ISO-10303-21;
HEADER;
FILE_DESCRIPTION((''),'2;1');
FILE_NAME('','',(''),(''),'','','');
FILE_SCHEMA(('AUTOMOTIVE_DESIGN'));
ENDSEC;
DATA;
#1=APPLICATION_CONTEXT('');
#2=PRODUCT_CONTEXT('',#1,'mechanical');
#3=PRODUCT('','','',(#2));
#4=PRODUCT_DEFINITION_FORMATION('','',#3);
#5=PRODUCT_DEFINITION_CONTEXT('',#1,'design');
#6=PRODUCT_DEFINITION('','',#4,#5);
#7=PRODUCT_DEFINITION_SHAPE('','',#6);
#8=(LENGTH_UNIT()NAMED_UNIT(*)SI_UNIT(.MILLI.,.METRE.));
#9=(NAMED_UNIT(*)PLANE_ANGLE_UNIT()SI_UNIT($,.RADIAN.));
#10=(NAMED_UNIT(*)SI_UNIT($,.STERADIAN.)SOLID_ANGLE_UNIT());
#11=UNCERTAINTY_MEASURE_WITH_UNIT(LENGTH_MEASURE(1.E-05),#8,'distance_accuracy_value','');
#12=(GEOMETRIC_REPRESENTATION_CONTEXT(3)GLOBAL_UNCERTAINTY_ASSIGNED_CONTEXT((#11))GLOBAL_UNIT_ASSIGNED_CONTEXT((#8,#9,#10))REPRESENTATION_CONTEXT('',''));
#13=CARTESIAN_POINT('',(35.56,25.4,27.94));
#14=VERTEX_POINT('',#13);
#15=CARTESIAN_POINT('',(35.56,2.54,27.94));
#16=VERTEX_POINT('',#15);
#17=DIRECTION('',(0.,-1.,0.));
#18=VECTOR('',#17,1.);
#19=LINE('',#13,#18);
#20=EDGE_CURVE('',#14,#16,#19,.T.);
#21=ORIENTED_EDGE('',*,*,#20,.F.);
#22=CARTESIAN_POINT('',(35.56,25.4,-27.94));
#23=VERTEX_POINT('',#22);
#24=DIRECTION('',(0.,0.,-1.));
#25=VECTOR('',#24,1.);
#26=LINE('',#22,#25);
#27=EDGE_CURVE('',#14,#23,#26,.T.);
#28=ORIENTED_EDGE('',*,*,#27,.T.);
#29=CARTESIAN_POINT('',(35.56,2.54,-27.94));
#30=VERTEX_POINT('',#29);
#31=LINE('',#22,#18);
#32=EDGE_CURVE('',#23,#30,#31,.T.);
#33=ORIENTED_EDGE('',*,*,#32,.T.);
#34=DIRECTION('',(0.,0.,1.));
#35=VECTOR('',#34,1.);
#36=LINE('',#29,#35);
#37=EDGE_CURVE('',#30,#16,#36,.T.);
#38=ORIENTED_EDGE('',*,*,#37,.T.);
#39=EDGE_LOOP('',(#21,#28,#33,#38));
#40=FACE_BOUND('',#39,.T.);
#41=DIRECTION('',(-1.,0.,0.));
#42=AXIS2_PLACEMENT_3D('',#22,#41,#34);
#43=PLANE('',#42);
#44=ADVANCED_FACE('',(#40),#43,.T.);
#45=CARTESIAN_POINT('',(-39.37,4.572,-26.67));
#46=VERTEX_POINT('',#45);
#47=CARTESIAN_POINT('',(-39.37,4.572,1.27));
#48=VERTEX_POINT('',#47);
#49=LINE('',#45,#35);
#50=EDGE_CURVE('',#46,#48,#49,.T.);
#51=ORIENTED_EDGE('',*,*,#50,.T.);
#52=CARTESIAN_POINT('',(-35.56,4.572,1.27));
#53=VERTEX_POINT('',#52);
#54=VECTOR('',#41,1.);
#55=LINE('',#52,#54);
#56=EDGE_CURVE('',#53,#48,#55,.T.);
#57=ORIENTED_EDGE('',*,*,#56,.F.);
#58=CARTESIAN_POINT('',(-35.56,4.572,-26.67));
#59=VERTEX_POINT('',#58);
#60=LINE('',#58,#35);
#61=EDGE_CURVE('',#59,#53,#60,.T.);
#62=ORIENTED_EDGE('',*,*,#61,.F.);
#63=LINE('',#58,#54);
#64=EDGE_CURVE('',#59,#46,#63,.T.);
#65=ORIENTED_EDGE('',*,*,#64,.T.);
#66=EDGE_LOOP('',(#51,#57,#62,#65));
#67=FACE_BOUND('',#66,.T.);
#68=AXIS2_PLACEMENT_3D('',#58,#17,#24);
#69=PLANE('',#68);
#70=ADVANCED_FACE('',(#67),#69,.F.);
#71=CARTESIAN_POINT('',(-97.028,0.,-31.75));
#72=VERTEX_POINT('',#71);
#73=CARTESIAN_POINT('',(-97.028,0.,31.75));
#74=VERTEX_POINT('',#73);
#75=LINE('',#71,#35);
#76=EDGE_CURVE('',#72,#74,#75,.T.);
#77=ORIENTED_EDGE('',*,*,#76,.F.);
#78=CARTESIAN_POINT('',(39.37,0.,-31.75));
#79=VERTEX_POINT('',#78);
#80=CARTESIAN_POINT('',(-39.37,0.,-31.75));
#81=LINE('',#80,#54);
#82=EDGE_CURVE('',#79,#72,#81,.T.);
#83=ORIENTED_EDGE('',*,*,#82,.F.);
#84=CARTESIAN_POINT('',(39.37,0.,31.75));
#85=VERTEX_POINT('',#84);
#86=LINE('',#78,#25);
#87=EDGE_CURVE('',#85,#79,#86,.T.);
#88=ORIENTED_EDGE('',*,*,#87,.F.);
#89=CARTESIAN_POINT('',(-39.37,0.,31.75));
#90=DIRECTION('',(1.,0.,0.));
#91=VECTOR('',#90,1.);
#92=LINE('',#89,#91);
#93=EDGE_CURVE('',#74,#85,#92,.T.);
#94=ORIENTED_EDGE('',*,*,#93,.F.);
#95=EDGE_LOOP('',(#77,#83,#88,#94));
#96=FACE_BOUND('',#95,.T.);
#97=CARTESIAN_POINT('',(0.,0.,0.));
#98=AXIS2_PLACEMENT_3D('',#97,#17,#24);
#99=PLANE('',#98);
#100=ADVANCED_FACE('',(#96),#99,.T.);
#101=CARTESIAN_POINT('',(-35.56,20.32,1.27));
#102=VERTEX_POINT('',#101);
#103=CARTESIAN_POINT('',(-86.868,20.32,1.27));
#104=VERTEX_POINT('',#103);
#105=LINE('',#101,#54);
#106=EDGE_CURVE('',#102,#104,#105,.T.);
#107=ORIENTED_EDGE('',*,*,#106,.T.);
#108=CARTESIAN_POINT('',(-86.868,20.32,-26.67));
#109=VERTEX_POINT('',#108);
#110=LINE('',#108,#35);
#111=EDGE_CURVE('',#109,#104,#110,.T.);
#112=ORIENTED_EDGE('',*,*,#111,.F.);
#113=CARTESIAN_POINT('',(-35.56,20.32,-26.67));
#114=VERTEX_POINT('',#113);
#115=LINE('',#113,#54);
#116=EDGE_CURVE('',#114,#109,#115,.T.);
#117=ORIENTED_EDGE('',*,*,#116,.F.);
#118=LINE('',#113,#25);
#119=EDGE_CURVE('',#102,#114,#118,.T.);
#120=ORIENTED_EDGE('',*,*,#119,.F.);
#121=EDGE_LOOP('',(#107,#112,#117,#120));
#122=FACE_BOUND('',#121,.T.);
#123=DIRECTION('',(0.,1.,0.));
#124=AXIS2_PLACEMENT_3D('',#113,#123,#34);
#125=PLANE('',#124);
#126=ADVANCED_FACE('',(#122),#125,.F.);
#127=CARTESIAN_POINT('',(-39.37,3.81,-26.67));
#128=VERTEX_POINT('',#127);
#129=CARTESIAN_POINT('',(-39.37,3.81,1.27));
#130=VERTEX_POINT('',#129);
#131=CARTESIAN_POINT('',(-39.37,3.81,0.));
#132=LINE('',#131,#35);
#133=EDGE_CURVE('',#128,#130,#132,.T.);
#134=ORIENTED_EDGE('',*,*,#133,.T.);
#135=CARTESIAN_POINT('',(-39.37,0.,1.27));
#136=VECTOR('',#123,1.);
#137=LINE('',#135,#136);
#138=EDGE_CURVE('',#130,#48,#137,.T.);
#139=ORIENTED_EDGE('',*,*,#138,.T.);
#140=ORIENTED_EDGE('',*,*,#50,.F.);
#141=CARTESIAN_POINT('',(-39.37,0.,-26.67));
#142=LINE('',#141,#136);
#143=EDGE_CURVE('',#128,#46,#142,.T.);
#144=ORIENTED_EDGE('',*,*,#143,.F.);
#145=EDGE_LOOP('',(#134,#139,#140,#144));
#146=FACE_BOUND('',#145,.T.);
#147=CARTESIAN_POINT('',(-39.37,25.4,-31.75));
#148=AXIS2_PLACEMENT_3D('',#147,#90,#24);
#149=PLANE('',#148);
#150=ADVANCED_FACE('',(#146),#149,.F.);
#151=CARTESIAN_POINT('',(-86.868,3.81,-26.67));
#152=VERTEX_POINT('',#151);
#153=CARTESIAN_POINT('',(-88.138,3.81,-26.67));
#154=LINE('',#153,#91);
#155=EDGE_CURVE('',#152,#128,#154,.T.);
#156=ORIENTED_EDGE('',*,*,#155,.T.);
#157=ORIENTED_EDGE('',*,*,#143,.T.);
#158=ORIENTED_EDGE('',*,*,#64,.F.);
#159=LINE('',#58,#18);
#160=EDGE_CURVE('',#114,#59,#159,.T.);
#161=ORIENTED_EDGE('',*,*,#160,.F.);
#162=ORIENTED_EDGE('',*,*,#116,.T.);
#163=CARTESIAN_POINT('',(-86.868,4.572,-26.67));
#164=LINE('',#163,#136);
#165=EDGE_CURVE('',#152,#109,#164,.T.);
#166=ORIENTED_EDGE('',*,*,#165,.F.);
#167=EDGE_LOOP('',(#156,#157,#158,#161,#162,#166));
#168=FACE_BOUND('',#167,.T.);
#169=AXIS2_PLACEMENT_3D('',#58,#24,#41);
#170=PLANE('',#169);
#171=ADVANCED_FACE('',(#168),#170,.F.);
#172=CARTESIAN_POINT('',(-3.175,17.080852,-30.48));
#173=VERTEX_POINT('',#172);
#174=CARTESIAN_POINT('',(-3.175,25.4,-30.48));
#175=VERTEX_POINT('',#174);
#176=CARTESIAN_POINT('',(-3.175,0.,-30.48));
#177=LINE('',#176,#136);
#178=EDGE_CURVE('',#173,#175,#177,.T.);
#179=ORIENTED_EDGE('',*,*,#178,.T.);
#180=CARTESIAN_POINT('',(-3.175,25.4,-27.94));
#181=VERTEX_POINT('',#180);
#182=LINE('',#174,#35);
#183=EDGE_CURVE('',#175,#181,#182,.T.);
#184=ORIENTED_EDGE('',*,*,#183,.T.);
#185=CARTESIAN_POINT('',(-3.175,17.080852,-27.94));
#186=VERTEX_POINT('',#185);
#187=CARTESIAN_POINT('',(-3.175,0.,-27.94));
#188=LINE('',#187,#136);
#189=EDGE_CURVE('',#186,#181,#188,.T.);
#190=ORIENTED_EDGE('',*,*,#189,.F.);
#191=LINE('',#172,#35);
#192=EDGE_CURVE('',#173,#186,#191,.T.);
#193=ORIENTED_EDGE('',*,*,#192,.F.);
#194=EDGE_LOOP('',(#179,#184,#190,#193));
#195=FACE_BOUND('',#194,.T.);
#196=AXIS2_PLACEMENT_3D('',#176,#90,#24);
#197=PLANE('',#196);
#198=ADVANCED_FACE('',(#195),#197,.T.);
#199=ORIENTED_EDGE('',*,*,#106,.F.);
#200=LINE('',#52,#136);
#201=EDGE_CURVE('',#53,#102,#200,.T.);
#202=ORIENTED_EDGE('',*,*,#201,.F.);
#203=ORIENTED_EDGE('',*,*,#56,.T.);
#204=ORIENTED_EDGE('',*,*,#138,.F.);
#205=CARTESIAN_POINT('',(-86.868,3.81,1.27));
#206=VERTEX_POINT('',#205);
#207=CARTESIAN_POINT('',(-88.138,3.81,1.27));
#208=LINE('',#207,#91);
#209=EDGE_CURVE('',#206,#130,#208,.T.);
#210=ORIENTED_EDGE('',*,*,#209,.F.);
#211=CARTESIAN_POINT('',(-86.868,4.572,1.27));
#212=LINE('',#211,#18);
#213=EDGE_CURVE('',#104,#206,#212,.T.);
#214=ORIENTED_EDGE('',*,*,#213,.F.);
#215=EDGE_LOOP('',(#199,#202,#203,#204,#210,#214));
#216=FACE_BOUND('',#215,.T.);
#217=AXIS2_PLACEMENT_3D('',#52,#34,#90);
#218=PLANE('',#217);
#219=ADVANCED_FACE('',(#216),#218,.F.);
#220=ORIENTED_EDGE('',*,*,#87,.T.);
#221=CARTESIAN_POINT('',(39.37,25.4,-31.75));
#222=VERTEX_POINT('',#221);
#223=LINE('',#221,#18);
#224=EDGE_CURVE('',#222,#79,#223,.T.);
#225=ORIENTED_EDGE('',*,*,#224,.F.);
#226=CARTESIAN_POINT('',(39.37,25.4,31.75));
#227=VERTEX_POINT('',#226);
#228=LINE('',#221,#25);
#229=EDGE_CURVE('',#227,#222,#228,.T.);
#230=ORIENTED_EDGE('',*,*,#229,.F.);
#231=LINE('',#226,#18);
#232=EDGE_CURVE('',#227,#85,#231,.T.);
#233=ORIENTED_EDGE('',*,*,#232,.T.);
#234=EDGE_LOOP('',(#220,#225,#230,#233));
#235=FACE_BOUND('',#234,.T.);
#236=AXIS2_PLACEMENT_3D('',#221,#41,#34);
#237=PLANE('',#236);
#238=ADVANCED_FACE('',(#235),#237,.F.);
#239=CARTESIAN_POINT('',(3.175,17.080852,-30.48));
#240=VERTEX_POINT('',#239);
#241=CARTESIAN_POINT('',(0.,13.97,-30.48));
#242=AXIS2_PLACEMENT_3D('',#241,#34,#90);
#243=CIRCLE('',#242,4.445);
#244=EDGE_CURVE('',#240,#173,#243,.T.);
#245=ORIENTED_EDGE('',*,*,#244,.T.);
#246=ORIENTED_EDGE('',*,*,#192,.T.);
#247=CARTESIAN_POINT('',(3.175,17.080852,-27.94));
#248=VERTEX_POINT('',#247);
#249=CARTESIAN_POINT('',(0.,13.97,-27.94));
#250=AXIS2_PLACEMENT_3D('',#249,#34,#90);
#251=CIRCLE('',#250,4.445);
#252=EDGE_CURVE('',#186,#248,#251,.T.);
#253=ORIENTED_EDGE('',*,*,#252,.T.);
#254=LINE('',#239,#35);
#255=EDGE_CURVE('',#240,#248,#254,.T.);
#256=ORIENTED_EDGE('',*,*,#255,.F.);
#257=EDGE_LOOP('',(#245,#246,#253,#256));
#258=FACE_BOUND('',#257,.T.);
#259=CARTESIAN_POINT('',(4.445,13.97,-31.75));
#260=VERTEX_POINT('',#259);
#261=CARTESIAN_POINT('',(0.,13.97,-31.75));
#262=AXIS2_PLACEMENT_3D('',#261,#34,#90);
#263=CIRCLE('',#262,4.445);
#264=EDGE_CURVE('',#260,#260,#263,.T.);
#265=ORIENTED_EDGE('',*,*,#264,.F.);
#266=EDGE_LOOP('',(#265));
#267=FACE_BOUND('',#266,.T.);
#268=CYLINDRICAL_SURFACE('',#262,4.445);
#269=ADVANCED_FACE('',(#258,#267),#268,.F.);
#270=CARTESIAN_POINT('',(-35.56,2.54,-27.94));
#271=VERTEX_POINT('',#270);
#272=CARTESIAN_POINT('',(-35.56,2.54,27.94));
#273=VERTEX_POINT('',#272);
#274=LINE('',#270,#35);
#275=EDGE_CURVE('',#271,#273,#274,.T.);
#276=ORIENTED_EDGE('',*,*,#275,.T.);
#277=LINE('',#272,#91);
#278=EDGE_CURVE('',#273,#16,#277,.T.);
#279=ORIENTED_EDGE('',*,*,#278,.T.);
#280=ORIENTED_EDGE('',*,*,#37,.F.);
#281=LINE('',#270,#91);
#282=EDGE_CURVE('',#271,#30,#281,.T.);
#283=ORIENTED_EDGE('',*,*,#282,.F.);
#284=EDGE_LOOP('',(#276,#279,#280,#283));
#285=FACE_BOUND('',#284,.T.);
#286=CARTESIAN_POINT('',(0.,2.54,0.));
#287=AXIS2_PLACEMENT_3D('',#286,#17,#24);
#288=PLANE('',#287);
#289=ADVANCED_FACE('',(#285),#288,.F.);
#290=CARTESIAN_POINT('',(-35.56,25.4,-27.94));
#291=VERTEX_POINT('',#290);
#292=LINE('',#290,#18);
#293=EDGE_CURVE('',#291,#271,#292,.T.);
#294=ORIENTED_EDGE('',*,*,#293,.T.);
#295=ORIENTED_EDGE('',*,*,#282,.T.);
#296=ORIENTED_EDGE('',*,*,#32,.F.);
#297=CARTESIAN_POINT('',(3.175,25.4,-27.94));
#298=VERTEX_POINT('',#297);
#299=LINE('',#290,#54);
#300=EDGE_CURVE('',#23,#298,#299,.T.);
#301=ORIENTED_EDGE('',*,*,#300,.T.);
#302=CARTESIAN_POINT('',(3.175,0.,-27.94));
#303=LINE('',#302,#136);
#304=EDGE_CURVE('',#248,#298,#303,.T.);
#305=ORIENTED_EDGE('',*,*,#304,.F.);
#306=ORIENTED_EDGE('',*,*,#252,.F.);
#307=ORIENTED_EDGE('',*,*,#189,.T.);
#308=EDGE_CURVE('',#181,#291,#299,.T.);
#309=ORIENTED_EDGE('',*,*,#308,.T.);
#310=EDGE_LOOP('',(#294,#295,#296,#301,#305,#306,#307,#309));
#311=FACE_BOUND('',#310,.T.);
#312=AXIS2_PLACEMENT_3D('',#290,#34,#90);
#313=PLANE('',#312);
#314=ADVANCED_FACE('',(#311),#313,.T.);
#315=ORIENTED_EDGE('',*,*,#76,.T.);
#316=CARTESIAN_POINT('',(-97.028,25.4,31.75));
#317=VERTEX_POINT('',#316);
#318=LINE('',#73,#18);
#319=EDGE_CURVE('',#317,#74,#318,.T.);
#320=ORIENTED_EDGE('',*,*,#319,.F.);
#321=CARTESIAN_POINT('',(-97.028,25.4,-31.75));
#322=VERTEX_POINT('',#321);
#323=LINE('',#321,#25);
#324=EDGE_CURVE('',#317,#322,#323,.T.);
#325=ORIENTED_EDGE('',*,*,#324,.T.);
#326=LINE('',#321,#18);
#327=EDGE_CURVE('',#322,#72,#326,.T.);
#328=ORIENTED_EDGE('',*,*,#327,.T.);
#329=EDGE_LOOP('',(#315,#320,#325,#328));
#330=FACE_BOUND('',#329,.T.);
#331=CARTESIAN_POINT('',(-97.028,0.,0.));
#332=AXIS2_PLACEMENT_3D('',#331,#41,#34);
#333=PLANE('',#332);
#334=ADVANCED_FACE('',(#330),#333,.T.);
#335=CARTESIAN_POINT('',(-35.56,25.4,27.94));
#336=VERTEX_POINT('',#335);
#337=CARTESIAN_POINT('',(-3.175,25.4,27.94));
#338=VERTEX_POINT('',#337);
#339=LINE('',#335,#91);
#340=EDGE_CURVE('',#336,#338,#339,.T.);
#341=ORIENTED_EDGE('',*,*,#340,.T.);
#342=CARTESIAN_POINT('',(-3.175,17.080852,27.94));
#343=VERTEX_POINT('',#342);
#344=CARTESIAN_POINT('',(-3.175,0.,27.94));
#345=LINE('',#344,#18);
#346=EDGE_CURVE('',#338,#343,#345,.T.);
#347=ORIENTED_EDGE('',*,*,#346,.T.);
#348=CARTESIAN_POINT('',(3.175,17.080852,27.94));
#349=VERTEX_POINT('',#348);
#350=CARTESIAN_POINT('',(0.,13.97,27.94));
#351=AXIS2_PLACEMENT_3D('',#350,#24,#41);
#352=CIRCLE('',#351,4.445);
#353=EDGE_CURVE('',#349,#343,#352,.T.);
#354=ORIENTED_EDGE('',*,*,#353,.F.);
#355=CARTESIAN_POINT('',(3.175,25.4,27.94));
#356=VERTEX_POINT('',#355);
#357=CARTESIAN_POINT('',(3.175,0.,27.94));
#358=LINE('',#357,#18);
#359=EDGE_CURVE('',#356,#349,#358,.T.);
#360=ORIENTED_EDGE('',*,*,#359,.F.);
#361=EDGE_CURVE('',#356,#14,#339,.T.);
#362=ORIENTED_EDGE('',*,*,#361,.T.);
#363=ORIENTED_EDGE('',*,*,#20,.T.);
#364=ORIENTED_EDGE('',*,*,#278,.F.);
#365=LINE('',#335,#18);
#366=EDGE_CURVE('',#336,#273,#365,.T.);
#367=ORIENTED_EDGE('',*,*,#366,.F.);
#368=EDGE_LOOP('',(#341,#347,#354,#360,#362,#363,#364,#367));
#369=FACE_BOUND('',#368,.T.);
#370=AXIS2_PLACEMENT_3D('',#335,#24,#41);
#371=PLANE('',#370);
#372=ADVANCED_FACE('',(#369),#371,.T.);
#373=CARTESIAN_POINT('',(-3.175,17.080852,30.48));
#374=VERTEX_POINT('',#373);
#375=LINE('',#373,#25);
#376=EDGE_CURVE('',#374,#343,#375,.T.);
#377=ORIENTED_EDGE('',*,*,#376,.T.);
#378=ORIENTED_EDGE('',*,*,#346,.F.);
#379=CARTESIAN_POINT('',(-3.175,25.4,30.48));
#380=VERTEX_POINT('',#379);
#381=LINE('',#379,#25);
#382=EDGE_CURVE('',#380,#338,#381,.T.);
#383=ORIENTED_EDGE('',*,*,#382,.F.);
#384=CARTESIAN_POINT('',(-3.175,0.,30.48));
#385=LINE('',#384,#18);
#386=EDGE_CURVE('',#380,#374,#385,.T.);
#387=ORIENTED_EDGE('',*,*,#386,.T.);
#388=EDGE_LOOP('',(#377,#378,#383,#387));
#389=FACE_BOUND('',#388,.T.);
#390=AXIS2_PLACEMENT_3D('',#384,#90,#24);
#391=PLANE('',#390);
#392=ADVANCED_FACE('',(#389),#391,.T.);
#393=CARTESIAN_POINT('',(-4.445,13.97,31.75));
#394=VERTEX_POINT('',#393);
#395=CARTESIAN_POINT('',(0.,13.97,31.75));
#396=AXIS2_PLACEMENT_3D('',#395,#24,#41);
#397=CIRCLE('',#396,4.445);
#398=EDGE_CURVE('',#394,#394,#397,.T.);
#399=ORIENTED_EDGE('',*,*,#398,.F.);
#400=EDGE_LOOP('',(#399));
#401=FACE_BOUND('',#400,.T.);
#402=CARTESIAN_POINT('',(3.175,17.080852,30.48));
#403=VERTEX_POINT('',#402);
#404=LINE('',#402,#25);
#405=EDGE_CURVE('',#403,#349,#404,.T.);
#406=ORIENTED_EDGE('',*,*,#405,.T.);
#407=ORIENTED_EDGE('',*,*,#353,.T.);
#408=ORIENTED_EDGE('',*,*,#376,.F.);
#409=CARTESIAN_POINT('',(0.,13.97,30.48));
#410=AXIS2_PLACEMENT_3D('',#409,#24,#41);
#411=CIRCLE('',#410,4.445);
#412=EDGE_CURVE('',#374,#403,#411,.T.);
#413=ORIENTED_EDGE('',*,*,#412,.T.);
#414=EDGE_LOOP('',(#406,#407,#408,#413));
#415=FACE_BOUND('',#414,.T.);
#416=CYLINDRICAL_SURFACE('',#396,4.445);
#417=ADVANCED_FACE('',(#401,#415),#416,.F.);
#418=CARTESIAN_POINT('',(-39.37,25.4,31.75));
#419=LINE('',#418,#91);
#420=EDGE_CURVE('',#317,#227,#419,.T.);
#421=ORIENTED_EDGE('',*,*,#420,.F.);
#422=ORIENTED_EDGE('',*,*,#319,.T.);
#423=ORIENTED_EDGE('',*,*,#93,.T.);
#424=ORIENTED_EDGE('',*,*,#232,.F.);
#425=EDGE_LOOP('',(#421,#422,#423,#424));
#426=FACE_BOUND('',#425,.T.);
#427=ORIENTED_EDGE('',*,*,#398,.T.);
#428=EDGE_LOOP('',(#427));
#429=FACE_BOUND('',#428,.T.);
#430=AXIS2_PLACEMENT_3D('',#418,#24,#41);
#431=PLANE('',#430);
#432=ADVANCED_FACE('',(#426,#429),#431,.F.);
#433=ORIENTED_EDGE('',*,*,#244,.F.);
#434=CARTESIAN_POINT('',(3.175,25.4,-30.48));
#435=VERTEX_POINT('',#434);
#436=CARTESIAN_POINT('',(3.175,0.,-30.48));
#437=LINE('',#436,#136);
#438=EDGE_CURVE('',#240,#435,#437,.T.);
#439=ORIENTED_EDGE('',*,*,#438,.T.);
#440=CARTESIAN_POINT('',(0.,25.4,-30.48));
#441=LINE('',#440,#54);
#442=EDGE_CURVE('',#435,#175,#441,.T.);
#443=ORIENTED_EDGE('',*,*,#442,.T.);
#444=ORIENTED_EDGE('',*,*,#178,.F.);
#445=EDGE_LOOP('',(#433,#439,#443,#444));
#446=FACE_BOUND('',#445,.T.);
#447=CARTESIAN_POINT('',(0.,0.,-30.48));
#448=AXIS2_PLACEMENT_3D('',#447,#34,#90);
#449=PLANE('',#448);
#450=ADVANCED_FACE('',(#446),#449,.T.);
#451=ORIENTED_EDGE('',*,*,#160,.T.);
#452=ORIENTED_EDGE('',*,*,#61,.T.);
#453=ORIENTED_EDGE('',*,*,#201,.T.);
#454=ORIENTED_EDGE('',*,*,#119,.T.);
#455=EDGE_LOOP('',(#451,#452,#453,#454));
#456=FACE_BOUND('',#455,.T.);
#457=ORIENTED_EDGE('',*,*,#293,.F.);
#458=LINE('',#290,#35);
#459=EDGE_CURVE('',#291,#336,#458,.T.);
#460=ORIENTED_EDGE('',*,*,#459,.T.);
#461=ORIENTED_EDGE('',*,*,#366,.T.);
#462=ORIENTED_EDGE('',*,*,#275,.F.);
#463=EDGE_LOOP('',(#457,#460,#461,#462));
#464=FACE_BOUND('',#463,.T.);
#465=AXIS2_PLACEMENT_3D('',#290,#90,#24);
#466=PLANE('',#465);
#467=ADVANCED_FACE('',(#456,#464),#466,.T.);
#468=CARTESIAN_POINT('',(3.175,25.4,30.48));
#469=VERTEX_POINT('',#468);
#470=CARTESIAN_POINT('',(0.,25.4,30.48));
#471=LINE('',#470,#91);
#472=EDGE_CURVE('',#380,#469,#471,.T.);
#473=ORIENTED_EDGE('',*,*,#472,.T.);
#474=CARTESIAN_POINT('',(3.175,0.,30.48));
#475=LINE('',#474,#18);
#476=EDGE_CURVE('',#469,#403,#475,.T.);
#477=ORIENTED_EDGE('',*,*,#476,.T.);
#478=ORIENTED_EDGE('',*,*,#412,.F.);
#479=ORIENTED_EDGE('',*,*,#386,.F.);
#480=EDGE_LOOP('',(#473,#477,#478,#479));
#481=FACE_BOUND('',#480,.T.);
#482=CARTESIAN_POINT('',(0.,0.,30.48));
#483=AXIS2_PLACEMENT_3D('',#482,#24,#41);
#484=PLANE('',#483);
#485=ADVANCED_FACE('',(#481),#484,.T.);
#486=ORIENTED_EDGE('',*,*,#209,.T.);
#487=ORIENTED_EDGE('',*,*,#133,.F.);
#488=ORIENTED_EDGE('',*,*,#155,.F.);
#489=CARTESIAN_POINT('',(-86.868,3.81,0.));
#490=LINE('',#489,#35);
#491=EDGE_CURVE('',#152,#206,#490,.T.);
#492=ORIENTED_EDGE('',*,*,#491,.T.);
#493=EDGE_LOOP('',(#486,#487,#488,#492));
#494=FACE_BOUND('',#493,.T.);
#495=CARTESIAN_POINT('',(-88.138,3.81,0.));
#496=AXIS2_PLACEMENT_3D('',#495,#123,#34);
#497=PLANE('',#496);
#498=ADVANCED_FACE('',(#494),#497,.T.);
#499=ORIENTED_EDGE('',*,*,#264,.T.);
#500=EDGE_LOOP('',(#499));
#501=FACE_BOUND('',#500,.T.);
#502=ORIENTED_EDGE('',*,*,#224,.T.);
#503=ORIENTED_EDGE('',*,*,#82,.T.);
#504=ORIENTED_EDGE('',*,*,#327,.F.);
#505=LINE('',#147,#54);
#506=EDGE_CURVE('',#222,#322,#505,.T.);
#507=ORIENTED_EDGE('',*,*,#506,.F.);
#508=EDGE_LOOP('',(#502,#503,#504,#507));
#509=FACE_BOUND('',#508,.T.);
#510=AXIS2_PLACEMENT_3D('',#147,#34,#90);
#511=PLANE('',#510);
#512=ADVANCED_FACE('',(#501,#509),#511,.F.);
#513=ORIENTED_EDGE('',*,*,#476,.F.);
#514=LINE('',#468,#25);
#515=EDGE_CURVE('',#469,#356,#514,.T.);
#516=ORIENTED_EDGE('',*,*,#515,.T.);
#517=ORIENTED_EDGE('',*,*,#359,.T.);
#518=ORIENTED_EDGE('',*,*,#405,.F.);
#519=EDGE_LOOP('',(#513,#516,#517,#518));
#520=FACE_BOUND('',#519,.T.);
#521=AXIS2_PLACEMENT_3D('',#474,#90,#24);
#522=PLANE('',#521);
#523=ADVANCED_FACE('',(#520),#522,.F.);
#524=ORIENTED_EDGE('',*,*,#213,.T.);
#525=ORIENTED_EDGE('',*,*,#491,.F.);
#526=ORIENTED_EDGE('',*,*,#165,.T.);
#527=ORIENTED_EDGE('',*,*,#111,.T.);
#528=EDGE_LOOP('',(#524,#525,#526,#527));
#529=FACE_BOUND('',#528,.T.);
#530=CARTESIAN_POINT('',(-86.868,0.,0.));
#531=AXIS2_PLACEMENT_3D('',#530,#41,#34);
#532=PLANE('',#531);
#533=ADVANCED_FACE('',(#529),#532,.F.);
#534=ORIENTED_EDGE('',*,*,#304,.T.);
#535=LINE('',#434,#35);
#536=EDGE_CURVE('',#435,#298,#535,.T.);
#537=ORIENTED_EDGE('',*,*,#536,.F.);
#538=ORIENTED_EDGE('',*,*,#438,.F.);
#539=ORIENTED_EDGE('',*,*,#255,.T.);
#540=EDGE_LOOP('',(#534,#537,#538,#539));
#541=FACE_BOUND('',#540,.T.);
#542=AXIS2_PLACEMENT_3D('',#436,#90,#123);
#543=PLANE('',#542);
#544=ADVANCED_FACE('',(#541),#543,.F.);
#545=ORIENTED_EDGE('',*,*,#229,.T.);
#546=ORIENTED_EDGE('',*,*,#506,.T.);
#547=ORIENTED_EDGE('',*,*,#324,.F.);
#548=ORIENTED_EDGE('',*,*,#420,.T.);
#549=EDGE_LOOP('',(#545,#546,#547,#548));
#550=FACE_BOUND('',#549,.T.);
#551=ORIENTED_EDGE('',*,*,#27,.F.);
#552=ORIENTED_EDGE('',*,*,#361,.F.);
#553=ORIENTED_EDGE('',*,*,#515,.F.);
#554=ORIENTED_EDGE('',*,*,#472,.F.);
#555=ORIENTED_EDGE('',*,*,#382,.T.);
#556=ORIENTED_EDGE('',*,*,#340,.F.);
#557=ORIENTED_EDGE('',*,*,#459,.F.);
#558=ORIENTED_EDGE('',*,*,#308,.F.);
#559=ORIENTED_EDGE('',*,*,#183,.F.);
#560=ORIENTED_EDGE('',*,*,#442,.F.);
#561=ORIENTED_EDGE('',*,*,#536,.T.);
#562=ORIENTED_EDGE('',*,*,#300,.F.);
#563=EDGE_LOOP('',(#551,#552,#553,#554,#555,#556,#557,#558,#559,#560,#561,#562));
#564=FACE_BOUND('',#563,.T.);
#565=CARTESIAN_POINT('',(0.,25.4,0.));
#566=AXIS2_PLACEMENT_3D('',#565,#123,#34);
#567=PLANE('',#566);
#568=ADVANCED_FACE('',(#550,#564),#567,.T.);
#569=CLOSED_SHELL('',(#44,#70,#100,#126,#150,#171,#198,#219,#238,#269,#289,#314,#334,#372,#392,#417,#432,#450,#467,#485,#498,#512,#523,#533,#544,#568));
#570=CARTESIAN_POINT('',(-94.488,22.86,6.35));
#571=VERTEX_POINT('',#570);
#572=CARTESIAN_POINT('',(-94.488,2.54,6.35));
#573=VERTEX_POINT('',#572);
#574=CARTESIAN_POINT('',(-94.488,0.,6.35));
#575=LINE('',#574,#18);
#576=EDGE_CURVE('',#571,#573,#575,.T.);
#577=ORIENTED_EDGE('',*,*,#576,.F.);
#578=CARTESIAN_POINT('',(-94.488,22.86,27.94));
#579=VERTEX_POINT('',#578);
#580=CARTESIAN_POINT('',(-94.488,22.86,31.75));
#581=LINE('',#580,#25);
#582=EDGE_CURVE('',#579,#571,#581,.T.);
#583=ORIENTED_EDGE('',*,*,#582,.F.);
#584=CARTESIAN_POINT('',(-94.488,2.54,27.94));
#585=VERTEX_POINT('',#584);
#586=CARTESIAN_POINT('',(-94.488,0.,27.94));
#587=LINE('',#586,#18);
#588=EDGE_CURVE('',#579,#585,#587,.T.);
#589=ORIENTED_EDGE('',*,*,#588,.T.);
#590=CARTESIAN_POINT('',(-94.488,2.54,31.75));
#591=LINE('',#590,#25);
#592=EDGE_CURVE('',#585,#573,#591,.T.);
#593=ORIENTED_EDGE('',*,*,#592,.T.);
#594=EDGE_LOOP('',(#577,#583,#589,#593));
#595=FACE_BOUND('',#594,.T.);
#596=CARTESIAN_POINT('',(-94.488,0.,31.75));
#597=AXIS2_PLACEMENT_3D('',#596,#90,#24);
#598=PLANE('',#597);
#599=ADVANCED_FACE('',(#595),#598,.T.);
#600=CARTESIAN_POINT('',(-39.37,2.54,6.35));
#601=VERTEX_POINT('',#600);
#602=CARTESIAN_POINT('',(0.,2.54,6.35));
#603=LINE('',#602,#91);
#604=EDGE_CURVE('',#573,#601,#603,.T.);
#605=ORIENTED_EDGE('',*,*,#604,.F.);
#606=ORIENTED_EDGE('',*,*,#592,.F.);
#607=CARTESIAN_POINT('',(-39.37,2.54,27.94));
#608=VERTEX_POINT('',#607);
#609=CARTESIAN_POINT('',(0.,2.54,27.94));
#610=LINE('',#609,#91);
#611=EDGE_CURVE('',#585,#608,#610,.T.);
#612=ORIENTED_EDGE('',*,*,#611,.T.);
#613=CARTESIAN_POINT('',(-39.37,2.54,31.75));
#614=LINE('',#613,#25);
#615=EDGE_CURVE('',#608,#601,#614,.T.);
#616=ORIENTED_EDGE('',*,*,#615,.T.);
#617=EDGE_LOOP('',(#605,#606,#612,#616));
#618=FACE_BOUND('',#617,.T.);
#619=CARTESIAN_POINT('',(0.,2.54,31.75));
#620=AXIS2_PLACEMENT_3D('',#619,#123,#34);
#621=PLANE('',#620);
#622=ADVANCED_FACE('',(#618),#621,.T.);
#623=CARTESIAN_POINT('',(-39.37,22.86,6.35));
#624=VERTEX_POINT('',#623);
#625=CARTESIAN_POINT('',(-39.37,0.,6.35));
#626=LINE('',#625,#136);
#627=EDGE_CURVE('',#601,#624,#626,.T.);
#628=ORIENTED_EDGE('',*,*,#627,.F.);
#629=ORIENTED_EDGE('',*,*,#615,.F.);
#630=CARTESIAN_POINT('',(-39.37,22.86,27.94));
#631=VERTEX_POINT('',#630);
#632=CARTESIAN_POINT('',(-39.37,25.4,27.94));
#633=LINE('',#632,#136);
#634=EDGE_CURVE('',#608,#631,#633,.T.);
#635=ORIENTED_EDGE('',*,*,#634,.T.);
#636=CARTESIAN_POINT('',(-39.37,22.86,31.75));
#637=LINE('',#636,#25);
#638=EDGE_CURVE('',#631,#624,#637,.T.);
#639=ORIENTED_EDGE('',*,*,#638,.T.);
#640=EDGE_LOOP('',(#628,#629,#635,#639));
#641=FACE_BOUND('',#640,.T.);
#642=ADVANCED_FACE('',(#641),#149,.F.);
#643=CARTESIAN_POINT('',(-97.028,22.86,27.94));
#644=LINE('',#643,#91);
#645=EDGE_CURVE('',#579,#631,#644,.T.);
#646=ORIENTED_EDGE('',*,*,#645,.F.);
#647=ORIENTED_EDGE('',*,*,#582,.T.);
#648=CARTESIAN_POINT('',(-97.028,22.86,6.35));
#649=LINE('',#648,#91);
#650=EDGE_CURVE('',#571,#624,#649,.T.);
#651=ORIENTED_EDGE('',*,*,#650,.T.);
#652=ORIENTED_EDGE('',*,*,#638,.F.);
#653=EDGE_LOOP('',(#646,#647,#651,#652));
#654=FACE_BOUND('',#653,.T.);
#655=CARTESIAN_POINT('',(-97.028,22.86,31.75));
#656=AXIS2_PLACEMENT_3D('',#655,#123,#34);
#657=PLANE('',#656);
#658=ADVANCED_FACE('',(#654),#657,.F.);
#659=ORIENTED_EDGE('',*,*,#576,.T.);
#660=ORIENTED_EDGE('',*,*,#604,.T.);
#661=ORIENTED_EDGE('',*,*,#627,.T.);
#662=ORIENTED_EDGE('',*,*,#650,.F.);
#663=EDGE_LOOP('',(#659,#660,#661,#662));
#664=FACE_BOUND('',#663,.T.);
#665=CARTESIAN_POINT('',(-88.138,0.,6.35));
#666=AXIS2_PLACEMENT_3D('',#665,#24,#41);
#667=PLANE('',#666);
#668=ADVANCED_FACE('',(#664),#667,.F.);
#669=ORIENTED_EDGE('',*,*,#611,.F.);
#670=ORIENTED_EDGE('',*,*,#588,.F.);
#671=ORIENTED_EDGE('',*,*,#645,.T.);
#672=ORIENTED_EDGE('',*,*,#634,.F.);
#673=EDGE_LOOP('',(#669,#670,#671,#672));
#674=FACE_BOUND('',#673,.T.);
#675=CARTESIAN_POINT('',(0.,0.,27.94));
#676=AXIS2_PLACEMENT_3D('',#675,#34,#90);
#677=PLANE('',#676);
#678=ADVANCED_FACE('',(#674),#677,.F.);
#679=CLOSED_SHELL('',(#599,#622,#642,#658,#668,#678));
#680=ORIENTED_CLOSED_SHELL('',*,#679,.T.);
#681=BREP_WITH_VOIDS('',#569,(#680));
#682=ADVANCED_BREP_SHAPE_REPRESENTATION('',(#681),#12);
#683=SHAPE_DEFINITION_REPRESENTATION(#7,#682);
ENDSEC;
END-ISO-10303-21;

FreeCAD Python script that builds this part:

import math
import FreeCAD as App
import Part
import Sketcher
from FreeCAD import Vector
Q = App.Units.Quantity

doc = App.newDocument("Part")
body = doc.addObject("PartDesign::Body", "Body")

# Sketch on XZ plane
sketch1 = body.newObject("Sketcher::SketchObject", "Sketch")
sketch1.AttachmentSupport = (doc.getObject("XZ_Plane"), [""])
sketch1.MapMode = "FlatFace"
sketch1.addGeometry(Part.LineSegment(Vector(-36, -28, 0), Vector(-36, 28, 0)), False)
sketch1.addGeometry(Part.LineSegment(Vector(-36, 28, 0), Vector(36, 28, 0)), False)
sketch1.addGeometry(Part.LineSegment(Vector(36, 28, 0), Vector(36, -28, 0)), False)
sketch1.addGeometry(Part.LineSegment(Vector(36, -28, 0), Vector(-36, -28, 0)), False)
sketch1.addConstraint(Sketcher.Constraint("Coincident", 0, 2, 1, 1))
sketch1.addConstraint(Sketcher.Constraint("Coincident", 1, 2, 2, 1))
sketch1.addConstraint(Sketcher.Constraint("Coincident", 2, 2, 3, 1))
sketch1.addConstraint(Sketcher.Constraint("Coincident", 3, 2, 0, 1))
sketch1.addConstraint(Sketcher.Constraint("Vertical", 0))
sketch1.addConstraint(Sketcher.Constraint("Horizontal", 1))
sketch1.addConstraint(Sketcher.Constraint("Vertical", 2))
sketch1.addConstraint(Sketcher.Constraint("Horizontal", 3))
sketch1.addConstraint(Sketcher.Constraint("Symmetric", 0, 2, 2, 2, -1, 1))
sketch1.addConstraint(Sketcher.Constraint("DistanceX", 1, 1, 1, 2, Q("2.8 in")))
sketch1.addConstraint(Sketcher.Constraint("DistanceY", 0, 1, 0, 2, Q("2.2 in")))
pad1 = body.newObject("PartDesign::Pad", "Pad")
pad1.Profile = sketch1
pad1.Length = Q("0.1 in")
pad1.Reversed = True

# Sketch on XZ plane
sketch2 = body.newObject("Sketcher::SketchObject", "Sketch001")
sketch2.AttachmentSupport = (doc.getObject("XZ_Plane"), [""])
sketch2.MapMode = "FlatFace"
sketch2.addGeometry(Part.LineSegment(Vector(-39, -32, 0), Vector(-39, 32, 0)), False)
sketch2.addGeometry(Part.LineSegment(Vector(-39, 32, 0), Vector(39, 32, 0)), False)
sketch2.addGeometry(Part.LineSegment(Vector(39, 32, 0), Vector(39, -32, 0)), False)
sketch2.addGeometry(Part.LineSegment(Vector(39, -32, 0), Vector(-39, -32, 0)), False)
sketch2.addGeometry(Part.LineSegment(Vector(36, 28, 0), Vector(-36, 28, 0)), False)
sketch2.addGeometry(Part.LineSegment(Vector(-36, 28, 0), Vector(-36, -28, 0)), False)
sketch2.addGeometry(Part.LineSegment(Vector(-36, -28, 0), Vector(36, -28, 0)), False)
sketch2.addGeometry(Part.LineSegment(Vector(36, -28, 0), Vector(36, 28, 0)), False)
sketch2.addConstraint(Sketcher.Constraint("Coincident", 0, 2, 1, 1))
sketch2.addConstraint(Sketcher.Constraint("Coincident", 1, 2, 2, 1))
sketch2.addConstraint(Sketcher.Constraint("Coincident", 2, 2, 3, 1))
sketch2.addConstraint(Sketcher.Constraint("Coincident", 3, 2, 0, 1))
sketch2.addConstraint(Sketcher.Constraint("Coincident", 4, 2, 5, 1))
sketch2.addConstraint(Sketcher.Constraint("Coincident", 5, 2, 6, 1))
sketch2.addConstraint(Sketcher.Constraint("Coincident", 6, 2, 7, 1))
sketch2.addConstraint(Sketcher.Constraint("Coincident", 7, 2, 4, 1))
sketch2.addConstraint(Sketcher.Constraint("Vertical", 0))
sketch2.addConstraint(Sketcher.Constraint("Horizontal", 1))
sketch2.addConstraint(Sketcher.Constraint("Vertical", 2))
sketch2.addConstraint(Sketcher.Constraint("Horizontal", 3))
sketch2.addConstraint(Sketcher.Constraint("Horizontal", 4))
sketch2.addConstraint(Sketcher.Constraint("Vertical", 5))
sketch2.addConstraint(Sketcher.Constraint("Horizontal", 6))
sketch2.addConstraint(Sketcher.Constraint("Vertical", 7))
sketch2.addConstraint(Sketcher.Constraint("Symmetric", 0, 2, 2, 2, -1, 1))
sketch2.addConstraint(Sketcher.Constraint("Symmetric", 4, 2, 6, 2, -1, 1))
sketch2.addConstraint(Sketcher.Constraint("DistanceX", 1, 1, 1, 2, Q("3.1 in")))
sketch2.addConstraint(Sketcher.Constraint("DistanceX", 4, 2, 4, 1, Q("2.8 in")))
sketch2.addConstraint(Sketcher.Constraint("DistanceY", 0, 1, 0, 2, Q("2.5 in")))
sketch2.addConstraint(Sketcher.Constraint("DistanceY", 5, 2, 5, 1, Q("2.2 in")))
pad2 = body.newObject("PartDesign::Pad", "Pad001")
pad2.Profile = sketch2
pad2.Length = Q("1 in")
pad2.Reversed = True

# Sketch on YZ plane
sketch3 = body.newObject("Sketcher::SketchObject", "Sketch002")
sketch3.AttachmentSupport = (doc.getObject("YZ_Plane"), [""])
sketch3.MapMode = "FlatFace"
sketch3.AttachmentOffset = App.Placement(Vector(0, 0, -1.55 * 25.4), App.Rotation())
sketch3.addGeometry(Part.LineSegment(Vector(20, -27, 0), Vector(5, -27, 0)), False)
sketch3.addGeometry(Part.LineSegment(Vector(5, -27, 0), Vector(5, 1, 0)), False)
sketch3.addGeometry(Part.LineSegment(Vector(5, 1, 0), Vector(20, 1, 0)), False)
sketch3.addGeometry(Part.LineSegment(Vector(20, 1, 0), Vector(20, -27, 0)), False)
sketch3.addConstraint(Sketcher.Constraint("Coincident", 0, 2, 1, 1))
sketch3.addConstraint(Sketcher.Constraint("Coincident", 1, 2, 2, 1))
sketch3.addConstraint(Sketcher.Constraint("Coincident", 2, 2, 3, 1))
sketch3.addConstraint(Sketcher.Constraint("Coincident", 3, 2, 0, 1))
sketch3.addConstraint(Sketcher.Constraint("Horizontal", 0))
sketch3.addConstraint(Sketcher.Constraint("Vertical", 1))
sketch3.addConstraint(Sketcher.Constraint("Horizontal", 2))
sketch3.addConstraint(Sketcher.Constraint("Vertical", 3))
sketch3.addConstraint(Sketcher.Constraint("DistanceY", 1, 1, 1, 2, Q("1.1 in")))
sketch3.addConstraint(Sketcher.Constraint("DistanceX", 0, 2, 0, 1, Q("0.62 in")))
sketch3.addConstraint(Sketcher.Constraint("DistanceX", -1, 1, 2, 2, Q("0.8 in")))
sketch3.addConstraint(Sketcher.Constraint("DistanceY", 0, 2, -1, 1, Q("1.05 in")))
pocket1 = body.newObject("PartDesign::Pocket", "Pocket")
pocket1.Profile = sketch3
pocket1.Length = Q("0.15 in")
pocket1.Reversed = True

# Sketch on XY plane
sketch4 = body.newObject("Sketcher::SketchObject", "Sketch003")
sketch4.AttachmentSupport = (doc.getObject("XY_Plane"), [""])
sketch4.MapMode = "FlatFace"
sketch4.AttachmentOffset = App.Placement(Vector(0, 0, 1.1 * 25.4), App.Rotation())
sketch4.addGeometry(Part.ArcOfCircle(Part.Circle(Vector(0, 14, 0), Vector(0, 0, 1), 4.4), math.radians(44), math.radians(136)), False)
sketch4.addGeometry(Part.ArcOfCircle(Part.Circle(Vector(0, 14, 0), Vector(0, 0, 1), 4.4), math.radians(180), math.radians(404)), False)
sketch4.addGeometry(Part.ArcOfCircle(Part.Circle(Vector(0, 14, 0), Vector(0, 0, 1), 4.4), math.radians(136), math.radians(180)), False)
sketch4.addConstraint(Sketcher.Constraint("Tangent", 0, 1, 1, 2))
sketch4.addConstraint(Sketcher.Constraint("Tangent", 1, 1, 2, 2))
sketch4.addConstraint(Sketcher.Constraint("Tangent", 2, 1, 0, 2))
sketch4.addConstraint(Sketcher.Constraint("Symmetric", 0, 1, 2, 1, -2))
sketch4.addConstraint(Sketcher.Constraint("Horizontal", 2, 3, 1, 1))
sketch4.addConstraint(Sketcher.Constraint("Radius", 0, Q("0.175 in")))
sketch4.addConstraint(Sketcher.Constraint("DistanceX", 1, 1, 0, 1, Q("0.3 in")))
sketch4.addConstraint(Sketcher.Constraint("DistanceY", -1, 1, 0, 3, Q("0.55 in")))
pocket2 = body.newObject("PartDesign::Pocket", "Pocket001")
pocket2.Profile = sketch4
pocket2.Length = Q("0.15 in")
pocket2.Reversed = True

# Sketch on XY plane
sketch5 = body.newObject("Sketcher::SketchObject", "Sketch004")
sketch5.AttachmentSupport = (doc.getObject("XY_Plane"), [""])
sketch5.MapMode = "FlatFace"
sketch5.AttachmentOffset = App.Placement(Vector(0, 0, 1.1 * 25.4), App.Rotation())
sketch5.addGeometry(Part.LineSegment(Vector(-3.2, 25.4, 0), Vector(3.2, 25.4, 0)), False)
sketch5.addGeometry(Part.LineSegment(Vector(3.2, 25.4, 0), Vector(3.2, 17.1, 0)), False)
sketch5.addGeometry(Part.ArcOfCircle(Part.Circle(Vector(0, 14, 0), Vector(0, 0, 1), 4.4), math.radians(44), math.radians(136)), False)
sketch5.addGeometry(Part.LineSegment(Vector(-3.2, 17.1, 0), Vector(-3.2, 25.4, 0)), False)
sketch5.addConstraint(Sketcher.Constraint("Coincident", 0, 2, 1, 1))
sketch5.addConstraint(Sketcher.Constraint("Coincident", 1, 2, 2, 1))
sketch5.addConstraint(Sketcher.Constraint("Coincident", 2, 2, 3, 1))
sketch5.addConstraint(Sketcher.Constraint("Coincident", 3, 2, 0, 1))
sketch5.addConstraint(Sketcher.Constraint("Horizontal", 0))
sketch5.addConstraint(Sketcher.Constraint("Vertical", 1))
sketch5.addConstraint(Sketcher.Constraint("Vertical", 3))
sketch5.addConstraint(Sketcher.Constraint("Symmetric", 1, 2, 2, 2, -2))
sketch5.addConstraint(Sketcher.Constraint("DistanceY", -1, 1, 0, 2, Q("1 in")))
sketch5.addConstraint(Sketcher.Constraint("Radius", 2, Q("0.175 in")))
sketch5.addConstraint(Sketcher.Constraint("DistanceX", 0, 1, 0, 2, Q("0.25 in")))
sketch5.addConstraint(Sketcher.Constraint("DistanceY", -1, 1, 2, 3, Q("0.55 in")))
pocket3 = body.newObject("PartDesign::Pocket", "Pocket002")
pocket3.Profile = sketch5
pocket3.Length = Q("0.1 in")
pocket3.Reversed = True

# Sketch on XY plane
sketch6 = body.newObject("Sketcher::SketchObject", "Sketch005")
sketch6.AttachmentSupport = (doc.getObject("XY_Plane"), [""])
sketch6.MapMode = "FlatFace"
sketch6.AttachmentOffset = App.Placement(Vector(0, 0, -1.25 * 25.4), App.Rotation())
sketch6.addGeometry(Part.ArcOfCircle(Part.Circle(Vector(0, 14, 0), Vector(0, 0, 1), 4.4), math.radians(44), math.radians(136)), False)
sketch6.addGeometry(Part.ArcOfCircle(Part.Circle(Vector(0, 14, 0), Vector(0, 0, 1), 4.4), math.radians(136), math.radians(360)), False)
sketch6.addGeometry(Part.ArcOfCircle(Part.Circle(Vector(0, 14, 0), Vector(0, 0, 1), 4.4), math.radians(0), math.radians(44)), False)
sketch6.addConstraint(Sketcher.Constraint("Tangent", 0, 2, 1, 1))
sketch6.addConstraint(Sketcher.Constraint("Tangent", 1, 2, 2, 1))
sketch6.addConstraint(Sketcher.Constraint("Tangent", 2, 2, 0, 1))
sketch6.addConstraint(Sketcher.Constraint("Symmetric", 0, 2, 2, 2, -2))
sketch6.addConstraint(Sketcher.Constraint("Horizontal", 2, 3, 1, 2))
sketch6.addConstraint(Sketcher.Constraint("Radius", 0, Q("0.175 in")))
sketch6.addConstraint(Sketcher.Constraint("DistanceX", 0, 2, 1, 2, Q("0.3 in")))
sketch6.addConstraint(Sketcher.Constraint("DistanceY", -1, 1, 0, 3, Q("0.55 in")))
pocket4 = body.newObject("PartDesign::Pocket", "Pocket003")
pocket4.Profile = sketch6
pocket4.Length = Q("0.15 in")
pocket4.Reversed = True

# Sketch on XY plane
sketch7 = body.newObject("Sketcher::SketchObject", "Sketch006")
sketch7.AttachmentSupport = (doc.getObject("XY_Plane"), [""])
sketch7.MapMode = "FlatFace"
sketch7.AttachmentOffset = App.Placement(Vector(0, 0, -1.2 * 25.4), App.Rotation())
sketch7.addGeometry(Part.LineSegment(Vector(-3.2, 25.4, 0), Vector(-3.2, 17.1, 0)), False)
sketch7.addGeometry(Part.ArcOfCircle(Part.Circle(Vector(0, 14, 0), Vector(0, 0, 1), 4.4), math.radians(44), math.radians(136)), False)
sketch7.addGeometry(Part.LineSegment(Vector(3.2, 17.1, 0), Vector(3.2, 25.4, 0)), False)
sketch7.addGeometry(Part.LineSegment(Vector(3.2, 25.4, 0), Vector(-3.2, 25.4, 0)), False)
sketch7.addConstraint(Sketcher.Constraint("Coincident", 0, 2, 1, 2))
sketch7.addConstraint(Sketcher.Constraint("Coincident", 1, 1, 2, 1))
sketch7.addConstraint(Sketcher.Constraint("Coincident", 2, 2, 3, 1))
sketch7.addConstraint(Sketcher.Constraint("Coincident", 3, 2, 0, 1))
sketch7.addConstraint(Sketcher.Constraint("Vertical", 0))
sketch7.addConstraint(Sketcher.Constraint("Vertical", 2))
sketch7.addConstraint(Sketcher.Constraint("Horizontal", 3))
sketch7.addConstraint(Sketcher.Constraint("Symmetric", 0, 2, 1, 1, -2))
sketch7.addConstraint(Sketcher.Constraint("DistanceY", -1, 1, 2, 2, Q("1 in")))
sketch7.addConstraint(Sketcher.Constraint("Radius", 1, Q("0.175 in")))
sketch7.addConstraint(Sketcher.Constraint("DistanceX", 3, 2, 3, 1, Q("0.25 in")))
sketch7.addConstraint(Sketcher.Constraint("DistanceY", -1, 1, 1, 3, Q("0.55 in")))
pocket5 = body.newObject("PartDesign::Pocket", "Pocket004")
pocket5.Profile = sketch7
pocket5.Length = Q("0.1 in")
pocket5.Reversed = True

# Sketch on YZ plane
sketch8 = body.newObject("Sketcher::SketchObject", "Sketch007")
sketch8.AttachmentSupport = (doc.getObject("YZ_Plane"), [""])
sketch8.MapMode = "FlatFace"
sketch8.AttachmentOffset = App.Placement(Vector(0, 0, -1.55 * 25.4), App.Rotation())
sketch8.addGeometry(Part.LineSegment(Vector(25, -32, 0), Vector(0, -32, 0)), False)
sketch8.addGeometry(Part.LineSegment(Vector(0, -32, 0), Vector(0, 6, 0)), False)
sketch8.addGeometry(Part.LineSegment(Vector(0, 6, 0), Vector(25, 6, 0)), False)
sketch8.addGeometry(Part.LineSegment(Vector(25, 6, 0), Vector(25, -32, 0)), False)
sketch8.addGeometry(Part.LineSegment(Vector(4, -27, 0), Vector(20, -27, 0)), False)
sketch8.addGeometry(Part.LineSegment(Vector(20, -27, 0), Vector(20, 1, 0)), False)
sketch8.addGeometry(Part.LineSegment(Vector(20, 1, 0), Vector(4, 1, 0)), False)
sketch8.addGeometry(Part.LineSegment(Vector(4, 1, 0), Vector(4, -27, 0)), False)
sketch8.addConstraint(Sketcher.Constraint("Coincident", 0, 2, 1, 1))
sketch8.addConstraint(Sketcher.Constraint("Coincident", 1, 2, 2, 1))
sketch8.addConstraint(Sketcher.Constraint("Coincident", 2, 2, 3, 1))
sketch8.addConstraint(Sketcher.Constraint("Coincident", 3, 2, 0, 1))
sketch8.addConstraint(Sketcher.Constraint("Coincident", 4, 2, 5, 1))
sketch8.addConstraint(Sketcher.Constraint("Coincident", 5, 2, 6, 1))
sketch8.addConstraint(Sketcher.Constraint("Coincident", 6, 2, 7, 1))
sketch8.addConstraint(Sketcher.Constraint("Coincident", 7, 2, 4, 1))
sketch8.addConstraint(Sketcher.Constraint("Horizontal", 0))
sketch8.addConstraint(Sketcher.Constraint("Vertical", 1))
sketch8.addConstraint(Sketcher.Constraint("Horizontal", 2))
sketch8.addConstraint(Sketcher.Constraint("Vertical", 3))
sketch8.addConstraint(Sketcher.Constraint("Horizontal", 4))
sketch8.addConstraint(Sketcher.Constraint("Vertical", 5))
sketch8.addConstraint(Sketcher.Constraint("Horizontal", 6))
sketch8.addConstraint(Sketcher.Constraint("Vertical", 7))
sketch8.addConstraint(Sketcher.Constraint("PointOnObject", 0, 2, -2))
sketch8.addConstraint(Sketcher.Constraint("DistanceX", 0, 2, 0, 1, Q("1 in")))
sketch8.addConstraint(Sketcher.Constraint("DistanceY", 1, 1, 1, 2, Q("1.5 in")))
sketch8.addConstraint(Sketcher.Constraint("DistanceY", 5, 1, 5, 2, Q("1.1 in")))
sketch8.addConstraint(Sketcher.Constraint("DistanceX", 4, 1, 4, 2, Q("0.65 in")))
sketch8.addConstraint(Sketcher.Constraint("DistanceX", -1, 1, 4, 2, Q("0.8 in")))
sketch8.addConstraint(Sketcher.Constraint("DistanceY", 3, 2, 4, 2, Q("0.2 in")))
sketch8.addConstraint(Sketcher.Constraint("DistanceY", 0, 2, -1, 1, Q("1.25 in")))
pad3 = body.newObject("PartDesign::Pad", "Pad002")
pad3.Profile = sketch8
pad3.Length = Q("1.92 in")
pad3.Reversed = True

# Sketch on YZ plane
sketch9 = body.newObject("Sketcher::SketchObject", "Sketch008")
sketch9.AttachmentSupport = (doc.getObject("YZ_Plane"), [""])
sketch9.MapMode = "FlatFace"
sketch9.AttachmentOffset = App.Placement(Vector(0, 0, -3.47 * 25.4), App.Rotation())
sketch9.addGeometry(Part.LineSegment(Vector(25, -32, 0), Vector(0, -32, 0)), False)
sketch9.addGeometry(Part.LineSegment(Vector(0, -32, 0), Vector(0, 6, 0)), False)
sketch9.addGeometry(Part.LineSegment(Vector(0, 6, 0), Vector(25, 6, 0)), False)
sketch9.addGeometry(Part.LineSegment(Vector(25, 6, 0), Vector(25, -32, 0)), False)
sketch9.addConstraint(Sketcher.Constraint("Coincident", 0, 2, 1, 1))
sketch9.addConstraint(Sketcher.Constraint("Coincident", 1, 2, 2, 1))
sketch9.addConstraint(Sketcher.Constraint("Coincident", 2, 2, 3, 1))
sketch9.addConstraint(Sketcher.Constraint("Coincident", 3, 2, 0, 1))
sketch9.addConstraint(Sketcher.Constraint("Horizontal", 0))
sketch9.addConstraint(Sketcher.Constraint("Vertical", 1))
sketch9.addConstraint(Sketcher.Constraint("Horizontal", 2))
sketch9.addConstraint(Sketcher.Constraint("Vertical", 3))
sketch9.addConstraint(Sketcher.Constraint("PointOnObject", 0, 2, -2))
sketch9.addConstraint(Sketcher.Constraint("DistanceX", 0, 2, 0, 1, Q("1 in")))
sketch9.addConstraint(Sketcher.Constraint("DistanceY", 1, 1, 1, 2, Q("1.5 in")))
sketch9.addConstraint(Sketcher.Constraint("DistanceY", 0, 2, -1, 1, Q("1.25 in")))
pad4 = body.newObject("PartDesign::Pad", "Pad003")
pad4.Profile = sketch9
pad4.Type = "TwoLengths"
pad4.Length = Q("0.35 in")
pad4.Length2 = Q("0.05 in")
pad4.Reversed = True

# Sketch on XY plane
sketch10 = body.newObject("Sketcher::SketchObject", "Sketch009")
sketch10.AttachmentSupport = (doc.getObject("XY_Plane"), [""])
sketch10.MapMode = "FlatFace"
sketch10.AttachmentOffset = App.Placement(Vector(0, 0, 0.25 * 25.4), App.Rotation())
sketch10.addGeometry(Part.LineSegment(Vector(-97, 25.4, 0), Vector(-97, 0, 0)), False)
sketch10.addGeometry(Part.LineSegment(Vector(-97, 0, 0), Vector(-39.4, 0, 0)), False)
sketch10.addGeometry(Part.LineSegment(Vector(-39.4, 0, 0), Vector(-39.4, 2.5, 0)), False)
sketch10.addGeometry(Part.LineSegment(Vector(-39.4, 2.5, 0), Vector(-94.5, 2.5, 0)), False)
sketch10.addGeometry(Part.LineSegment(Vector(-94.5, 2.5, 0), Vector(-94.5, 22.9, 0)), False)
sketch10.addGeometry(Part.LineSegment(Vector(-94.5, 22.9, 0), Vector(-39.4, 22.9, 0)), False)
sketch10.addGeometry(Part.LineSegment(Vector(-39.4, 22.9, 0), Vector(-39.4, 25.4, 0)), False)
sketch10.addGeometry(Part.LineSegment(Vector(-39.4, 25.4, 0), Vector(-97, 25.4, 0)), False)
sketch10.addConstraint(Sketcher.Constraint("Coincident", 0, 2, 1, 1))
sketch10.addConstraint(Sketcher.Constraint("Coincident", 1, 2, 2, 1))
sketch10.addConstraint(Sketcher.Constraint("Coincident", 2, 2, 3, 1))
sketch10.addConstraint(Sketcher.Constraint("Coincident", 3, 2, 4, 1))
sketch10.addConstraint(Sketcher.Constraint("Coincident", 4, 2, 5, 1))
sketch10.addConstraint(Sketcher.Constraint("Coincident", 5, 2, 6, 1))
sketch10.addConstraint(Sketcher.Constraint("Coincident", 6, 2, 7, 1))
sketch10.addConstraint(Sketcher.Constraint("Coincident", 7, 2, 0, 1))
sketch10.addConstraint(Sketcher.Constraint("Vertical", 0))
sketch10.addConstraint(Sketcher.Constraint("Horizontal", 1))
sketch10.addConstraint(Sketcher.Constraint("Vertical", 2))
sketch10.addConstraint(Sketcher.Constraint("Horizontal", 3))
sketch10.addConstraint(Sketcher.Constraint("Vertical", 4))
sketch10.addConstraint(Sketcher.Constraint("Horizontal", 5))
sketch10.addConstraint(Sketcher.Constraint("Vertical", 6))
sketch10.addConstraint(Sketcher.Constraint("Horizontal", 7))
sketch10.addConstraint(Sketcher.Constraint("PointOnObject", 0, 2, -1))
sketch10.addConstraint(Sketcher.Constraint("Vertical", 2, 2, 5, 2))
sketch10.addConstraint(Sketcher.Constraint("Equal", 2, 6))
sketch10.addConstraint(Sketcher.Constraint("DistanceY", 0, 2, 0, 1, Q("1 in")))
sketch10.addConstraint(Sketcher.Constraint("DistanceY", 2, 1, 2, 2, Q("0.1 in")))
sketch10.addConstraint(Sketcher.Constraint("DistanceX", 1, 1, 1, 2, Q("2.27 in")))
sketch10.addConstraint(Sketcher.Constraint("DistanceX", 3, 2, 3, 1, Q("2.17 in")))
sketch10.addConstraint(Sketcher.Constraint("DistanceX", 0, 2, -1, 1, Q("3.82 in")))
pad5 = body.newObject("PartDesign::Pad", "Pad004")
pad5.Profile = sketch10
pad5.Length = Q("1 in")

# Sketch on XY plane
sketch11 = body.newObject("Sketcher::SketchObject", "Sketch010")
sketch11.AttachmentSupport = (doc.getObject("XY_Plane"), [""])
sketch11.MapMode = "FlatFace"
sketch11.AttachmentOffset = App.Placement(Vector(0, 0, 1.25 * 25.4), App.Rotation())
sketch11.addGeometry(Part.LineSegment(Vector(-97, 25, 0), Vector(-97, 0, 0)), False)
sketch11.addGeometry(Part.LineSegment(Vector(-97, 0, 0), Vector(-39, 0, 0)), False)
sketch11.addGeometry(Part.LineSegment(Vector(-39, 0, 0), Vector(-39, 25, 0)), False)
sketch11.addGeometry(Part.LineSegment(Vector(-39, 25, 0), Vector(-97, 25, 0)), False)
sketch11.addConstraint(Sketcher.Constraint("Coincident", 0, 2, 1, 1))
sketch11.addConstraint(Sketcher.Constraint("Coincident", 1, 2, 2, 1))
sketch11.addConstraint(Sketcher.Constraint("Coincident", 2, 2, 3, 1))
sketch11.addConstraint(Sketcher.Constraint("Coincident", 3, 2, 0, 1))
sketch11.addConstraint(Sketcher.Constraint("Vertical", 0))
sketch11.addConstraint(Sketcher.Constraint("Horizontal", 1))
sketch11.addConstraint(Sketcher.Constraint("Vertical", 2))
sketch11.addConstraint(Sketcher.Constraint("Horizontal", 3))
sketch11.addConstraint(Sketcher.Constraint("PointOnObject", 0, 2, -1))
sketch11.addConstraint(Sketcher.Constraint("DistanceY", 0, 2, 0, 1, Q("1 in")))
sketch11.addConstraint(Sketcher.Constraint("DistanceX", 1, 1, 1, 2, Q("2.27 in")))
sketch11.addConstraint(Sketcher.Constraint("DistanceX", 0, 2, -1, 1, Q("3.82 in")))
pad6 = body.newObject("PartDesign::Pad", "Pad005")
pad6.Profile = sketch11
pad6.Length = Q("0.15 in")
pad6.Reversed = True

doc.recompute()
